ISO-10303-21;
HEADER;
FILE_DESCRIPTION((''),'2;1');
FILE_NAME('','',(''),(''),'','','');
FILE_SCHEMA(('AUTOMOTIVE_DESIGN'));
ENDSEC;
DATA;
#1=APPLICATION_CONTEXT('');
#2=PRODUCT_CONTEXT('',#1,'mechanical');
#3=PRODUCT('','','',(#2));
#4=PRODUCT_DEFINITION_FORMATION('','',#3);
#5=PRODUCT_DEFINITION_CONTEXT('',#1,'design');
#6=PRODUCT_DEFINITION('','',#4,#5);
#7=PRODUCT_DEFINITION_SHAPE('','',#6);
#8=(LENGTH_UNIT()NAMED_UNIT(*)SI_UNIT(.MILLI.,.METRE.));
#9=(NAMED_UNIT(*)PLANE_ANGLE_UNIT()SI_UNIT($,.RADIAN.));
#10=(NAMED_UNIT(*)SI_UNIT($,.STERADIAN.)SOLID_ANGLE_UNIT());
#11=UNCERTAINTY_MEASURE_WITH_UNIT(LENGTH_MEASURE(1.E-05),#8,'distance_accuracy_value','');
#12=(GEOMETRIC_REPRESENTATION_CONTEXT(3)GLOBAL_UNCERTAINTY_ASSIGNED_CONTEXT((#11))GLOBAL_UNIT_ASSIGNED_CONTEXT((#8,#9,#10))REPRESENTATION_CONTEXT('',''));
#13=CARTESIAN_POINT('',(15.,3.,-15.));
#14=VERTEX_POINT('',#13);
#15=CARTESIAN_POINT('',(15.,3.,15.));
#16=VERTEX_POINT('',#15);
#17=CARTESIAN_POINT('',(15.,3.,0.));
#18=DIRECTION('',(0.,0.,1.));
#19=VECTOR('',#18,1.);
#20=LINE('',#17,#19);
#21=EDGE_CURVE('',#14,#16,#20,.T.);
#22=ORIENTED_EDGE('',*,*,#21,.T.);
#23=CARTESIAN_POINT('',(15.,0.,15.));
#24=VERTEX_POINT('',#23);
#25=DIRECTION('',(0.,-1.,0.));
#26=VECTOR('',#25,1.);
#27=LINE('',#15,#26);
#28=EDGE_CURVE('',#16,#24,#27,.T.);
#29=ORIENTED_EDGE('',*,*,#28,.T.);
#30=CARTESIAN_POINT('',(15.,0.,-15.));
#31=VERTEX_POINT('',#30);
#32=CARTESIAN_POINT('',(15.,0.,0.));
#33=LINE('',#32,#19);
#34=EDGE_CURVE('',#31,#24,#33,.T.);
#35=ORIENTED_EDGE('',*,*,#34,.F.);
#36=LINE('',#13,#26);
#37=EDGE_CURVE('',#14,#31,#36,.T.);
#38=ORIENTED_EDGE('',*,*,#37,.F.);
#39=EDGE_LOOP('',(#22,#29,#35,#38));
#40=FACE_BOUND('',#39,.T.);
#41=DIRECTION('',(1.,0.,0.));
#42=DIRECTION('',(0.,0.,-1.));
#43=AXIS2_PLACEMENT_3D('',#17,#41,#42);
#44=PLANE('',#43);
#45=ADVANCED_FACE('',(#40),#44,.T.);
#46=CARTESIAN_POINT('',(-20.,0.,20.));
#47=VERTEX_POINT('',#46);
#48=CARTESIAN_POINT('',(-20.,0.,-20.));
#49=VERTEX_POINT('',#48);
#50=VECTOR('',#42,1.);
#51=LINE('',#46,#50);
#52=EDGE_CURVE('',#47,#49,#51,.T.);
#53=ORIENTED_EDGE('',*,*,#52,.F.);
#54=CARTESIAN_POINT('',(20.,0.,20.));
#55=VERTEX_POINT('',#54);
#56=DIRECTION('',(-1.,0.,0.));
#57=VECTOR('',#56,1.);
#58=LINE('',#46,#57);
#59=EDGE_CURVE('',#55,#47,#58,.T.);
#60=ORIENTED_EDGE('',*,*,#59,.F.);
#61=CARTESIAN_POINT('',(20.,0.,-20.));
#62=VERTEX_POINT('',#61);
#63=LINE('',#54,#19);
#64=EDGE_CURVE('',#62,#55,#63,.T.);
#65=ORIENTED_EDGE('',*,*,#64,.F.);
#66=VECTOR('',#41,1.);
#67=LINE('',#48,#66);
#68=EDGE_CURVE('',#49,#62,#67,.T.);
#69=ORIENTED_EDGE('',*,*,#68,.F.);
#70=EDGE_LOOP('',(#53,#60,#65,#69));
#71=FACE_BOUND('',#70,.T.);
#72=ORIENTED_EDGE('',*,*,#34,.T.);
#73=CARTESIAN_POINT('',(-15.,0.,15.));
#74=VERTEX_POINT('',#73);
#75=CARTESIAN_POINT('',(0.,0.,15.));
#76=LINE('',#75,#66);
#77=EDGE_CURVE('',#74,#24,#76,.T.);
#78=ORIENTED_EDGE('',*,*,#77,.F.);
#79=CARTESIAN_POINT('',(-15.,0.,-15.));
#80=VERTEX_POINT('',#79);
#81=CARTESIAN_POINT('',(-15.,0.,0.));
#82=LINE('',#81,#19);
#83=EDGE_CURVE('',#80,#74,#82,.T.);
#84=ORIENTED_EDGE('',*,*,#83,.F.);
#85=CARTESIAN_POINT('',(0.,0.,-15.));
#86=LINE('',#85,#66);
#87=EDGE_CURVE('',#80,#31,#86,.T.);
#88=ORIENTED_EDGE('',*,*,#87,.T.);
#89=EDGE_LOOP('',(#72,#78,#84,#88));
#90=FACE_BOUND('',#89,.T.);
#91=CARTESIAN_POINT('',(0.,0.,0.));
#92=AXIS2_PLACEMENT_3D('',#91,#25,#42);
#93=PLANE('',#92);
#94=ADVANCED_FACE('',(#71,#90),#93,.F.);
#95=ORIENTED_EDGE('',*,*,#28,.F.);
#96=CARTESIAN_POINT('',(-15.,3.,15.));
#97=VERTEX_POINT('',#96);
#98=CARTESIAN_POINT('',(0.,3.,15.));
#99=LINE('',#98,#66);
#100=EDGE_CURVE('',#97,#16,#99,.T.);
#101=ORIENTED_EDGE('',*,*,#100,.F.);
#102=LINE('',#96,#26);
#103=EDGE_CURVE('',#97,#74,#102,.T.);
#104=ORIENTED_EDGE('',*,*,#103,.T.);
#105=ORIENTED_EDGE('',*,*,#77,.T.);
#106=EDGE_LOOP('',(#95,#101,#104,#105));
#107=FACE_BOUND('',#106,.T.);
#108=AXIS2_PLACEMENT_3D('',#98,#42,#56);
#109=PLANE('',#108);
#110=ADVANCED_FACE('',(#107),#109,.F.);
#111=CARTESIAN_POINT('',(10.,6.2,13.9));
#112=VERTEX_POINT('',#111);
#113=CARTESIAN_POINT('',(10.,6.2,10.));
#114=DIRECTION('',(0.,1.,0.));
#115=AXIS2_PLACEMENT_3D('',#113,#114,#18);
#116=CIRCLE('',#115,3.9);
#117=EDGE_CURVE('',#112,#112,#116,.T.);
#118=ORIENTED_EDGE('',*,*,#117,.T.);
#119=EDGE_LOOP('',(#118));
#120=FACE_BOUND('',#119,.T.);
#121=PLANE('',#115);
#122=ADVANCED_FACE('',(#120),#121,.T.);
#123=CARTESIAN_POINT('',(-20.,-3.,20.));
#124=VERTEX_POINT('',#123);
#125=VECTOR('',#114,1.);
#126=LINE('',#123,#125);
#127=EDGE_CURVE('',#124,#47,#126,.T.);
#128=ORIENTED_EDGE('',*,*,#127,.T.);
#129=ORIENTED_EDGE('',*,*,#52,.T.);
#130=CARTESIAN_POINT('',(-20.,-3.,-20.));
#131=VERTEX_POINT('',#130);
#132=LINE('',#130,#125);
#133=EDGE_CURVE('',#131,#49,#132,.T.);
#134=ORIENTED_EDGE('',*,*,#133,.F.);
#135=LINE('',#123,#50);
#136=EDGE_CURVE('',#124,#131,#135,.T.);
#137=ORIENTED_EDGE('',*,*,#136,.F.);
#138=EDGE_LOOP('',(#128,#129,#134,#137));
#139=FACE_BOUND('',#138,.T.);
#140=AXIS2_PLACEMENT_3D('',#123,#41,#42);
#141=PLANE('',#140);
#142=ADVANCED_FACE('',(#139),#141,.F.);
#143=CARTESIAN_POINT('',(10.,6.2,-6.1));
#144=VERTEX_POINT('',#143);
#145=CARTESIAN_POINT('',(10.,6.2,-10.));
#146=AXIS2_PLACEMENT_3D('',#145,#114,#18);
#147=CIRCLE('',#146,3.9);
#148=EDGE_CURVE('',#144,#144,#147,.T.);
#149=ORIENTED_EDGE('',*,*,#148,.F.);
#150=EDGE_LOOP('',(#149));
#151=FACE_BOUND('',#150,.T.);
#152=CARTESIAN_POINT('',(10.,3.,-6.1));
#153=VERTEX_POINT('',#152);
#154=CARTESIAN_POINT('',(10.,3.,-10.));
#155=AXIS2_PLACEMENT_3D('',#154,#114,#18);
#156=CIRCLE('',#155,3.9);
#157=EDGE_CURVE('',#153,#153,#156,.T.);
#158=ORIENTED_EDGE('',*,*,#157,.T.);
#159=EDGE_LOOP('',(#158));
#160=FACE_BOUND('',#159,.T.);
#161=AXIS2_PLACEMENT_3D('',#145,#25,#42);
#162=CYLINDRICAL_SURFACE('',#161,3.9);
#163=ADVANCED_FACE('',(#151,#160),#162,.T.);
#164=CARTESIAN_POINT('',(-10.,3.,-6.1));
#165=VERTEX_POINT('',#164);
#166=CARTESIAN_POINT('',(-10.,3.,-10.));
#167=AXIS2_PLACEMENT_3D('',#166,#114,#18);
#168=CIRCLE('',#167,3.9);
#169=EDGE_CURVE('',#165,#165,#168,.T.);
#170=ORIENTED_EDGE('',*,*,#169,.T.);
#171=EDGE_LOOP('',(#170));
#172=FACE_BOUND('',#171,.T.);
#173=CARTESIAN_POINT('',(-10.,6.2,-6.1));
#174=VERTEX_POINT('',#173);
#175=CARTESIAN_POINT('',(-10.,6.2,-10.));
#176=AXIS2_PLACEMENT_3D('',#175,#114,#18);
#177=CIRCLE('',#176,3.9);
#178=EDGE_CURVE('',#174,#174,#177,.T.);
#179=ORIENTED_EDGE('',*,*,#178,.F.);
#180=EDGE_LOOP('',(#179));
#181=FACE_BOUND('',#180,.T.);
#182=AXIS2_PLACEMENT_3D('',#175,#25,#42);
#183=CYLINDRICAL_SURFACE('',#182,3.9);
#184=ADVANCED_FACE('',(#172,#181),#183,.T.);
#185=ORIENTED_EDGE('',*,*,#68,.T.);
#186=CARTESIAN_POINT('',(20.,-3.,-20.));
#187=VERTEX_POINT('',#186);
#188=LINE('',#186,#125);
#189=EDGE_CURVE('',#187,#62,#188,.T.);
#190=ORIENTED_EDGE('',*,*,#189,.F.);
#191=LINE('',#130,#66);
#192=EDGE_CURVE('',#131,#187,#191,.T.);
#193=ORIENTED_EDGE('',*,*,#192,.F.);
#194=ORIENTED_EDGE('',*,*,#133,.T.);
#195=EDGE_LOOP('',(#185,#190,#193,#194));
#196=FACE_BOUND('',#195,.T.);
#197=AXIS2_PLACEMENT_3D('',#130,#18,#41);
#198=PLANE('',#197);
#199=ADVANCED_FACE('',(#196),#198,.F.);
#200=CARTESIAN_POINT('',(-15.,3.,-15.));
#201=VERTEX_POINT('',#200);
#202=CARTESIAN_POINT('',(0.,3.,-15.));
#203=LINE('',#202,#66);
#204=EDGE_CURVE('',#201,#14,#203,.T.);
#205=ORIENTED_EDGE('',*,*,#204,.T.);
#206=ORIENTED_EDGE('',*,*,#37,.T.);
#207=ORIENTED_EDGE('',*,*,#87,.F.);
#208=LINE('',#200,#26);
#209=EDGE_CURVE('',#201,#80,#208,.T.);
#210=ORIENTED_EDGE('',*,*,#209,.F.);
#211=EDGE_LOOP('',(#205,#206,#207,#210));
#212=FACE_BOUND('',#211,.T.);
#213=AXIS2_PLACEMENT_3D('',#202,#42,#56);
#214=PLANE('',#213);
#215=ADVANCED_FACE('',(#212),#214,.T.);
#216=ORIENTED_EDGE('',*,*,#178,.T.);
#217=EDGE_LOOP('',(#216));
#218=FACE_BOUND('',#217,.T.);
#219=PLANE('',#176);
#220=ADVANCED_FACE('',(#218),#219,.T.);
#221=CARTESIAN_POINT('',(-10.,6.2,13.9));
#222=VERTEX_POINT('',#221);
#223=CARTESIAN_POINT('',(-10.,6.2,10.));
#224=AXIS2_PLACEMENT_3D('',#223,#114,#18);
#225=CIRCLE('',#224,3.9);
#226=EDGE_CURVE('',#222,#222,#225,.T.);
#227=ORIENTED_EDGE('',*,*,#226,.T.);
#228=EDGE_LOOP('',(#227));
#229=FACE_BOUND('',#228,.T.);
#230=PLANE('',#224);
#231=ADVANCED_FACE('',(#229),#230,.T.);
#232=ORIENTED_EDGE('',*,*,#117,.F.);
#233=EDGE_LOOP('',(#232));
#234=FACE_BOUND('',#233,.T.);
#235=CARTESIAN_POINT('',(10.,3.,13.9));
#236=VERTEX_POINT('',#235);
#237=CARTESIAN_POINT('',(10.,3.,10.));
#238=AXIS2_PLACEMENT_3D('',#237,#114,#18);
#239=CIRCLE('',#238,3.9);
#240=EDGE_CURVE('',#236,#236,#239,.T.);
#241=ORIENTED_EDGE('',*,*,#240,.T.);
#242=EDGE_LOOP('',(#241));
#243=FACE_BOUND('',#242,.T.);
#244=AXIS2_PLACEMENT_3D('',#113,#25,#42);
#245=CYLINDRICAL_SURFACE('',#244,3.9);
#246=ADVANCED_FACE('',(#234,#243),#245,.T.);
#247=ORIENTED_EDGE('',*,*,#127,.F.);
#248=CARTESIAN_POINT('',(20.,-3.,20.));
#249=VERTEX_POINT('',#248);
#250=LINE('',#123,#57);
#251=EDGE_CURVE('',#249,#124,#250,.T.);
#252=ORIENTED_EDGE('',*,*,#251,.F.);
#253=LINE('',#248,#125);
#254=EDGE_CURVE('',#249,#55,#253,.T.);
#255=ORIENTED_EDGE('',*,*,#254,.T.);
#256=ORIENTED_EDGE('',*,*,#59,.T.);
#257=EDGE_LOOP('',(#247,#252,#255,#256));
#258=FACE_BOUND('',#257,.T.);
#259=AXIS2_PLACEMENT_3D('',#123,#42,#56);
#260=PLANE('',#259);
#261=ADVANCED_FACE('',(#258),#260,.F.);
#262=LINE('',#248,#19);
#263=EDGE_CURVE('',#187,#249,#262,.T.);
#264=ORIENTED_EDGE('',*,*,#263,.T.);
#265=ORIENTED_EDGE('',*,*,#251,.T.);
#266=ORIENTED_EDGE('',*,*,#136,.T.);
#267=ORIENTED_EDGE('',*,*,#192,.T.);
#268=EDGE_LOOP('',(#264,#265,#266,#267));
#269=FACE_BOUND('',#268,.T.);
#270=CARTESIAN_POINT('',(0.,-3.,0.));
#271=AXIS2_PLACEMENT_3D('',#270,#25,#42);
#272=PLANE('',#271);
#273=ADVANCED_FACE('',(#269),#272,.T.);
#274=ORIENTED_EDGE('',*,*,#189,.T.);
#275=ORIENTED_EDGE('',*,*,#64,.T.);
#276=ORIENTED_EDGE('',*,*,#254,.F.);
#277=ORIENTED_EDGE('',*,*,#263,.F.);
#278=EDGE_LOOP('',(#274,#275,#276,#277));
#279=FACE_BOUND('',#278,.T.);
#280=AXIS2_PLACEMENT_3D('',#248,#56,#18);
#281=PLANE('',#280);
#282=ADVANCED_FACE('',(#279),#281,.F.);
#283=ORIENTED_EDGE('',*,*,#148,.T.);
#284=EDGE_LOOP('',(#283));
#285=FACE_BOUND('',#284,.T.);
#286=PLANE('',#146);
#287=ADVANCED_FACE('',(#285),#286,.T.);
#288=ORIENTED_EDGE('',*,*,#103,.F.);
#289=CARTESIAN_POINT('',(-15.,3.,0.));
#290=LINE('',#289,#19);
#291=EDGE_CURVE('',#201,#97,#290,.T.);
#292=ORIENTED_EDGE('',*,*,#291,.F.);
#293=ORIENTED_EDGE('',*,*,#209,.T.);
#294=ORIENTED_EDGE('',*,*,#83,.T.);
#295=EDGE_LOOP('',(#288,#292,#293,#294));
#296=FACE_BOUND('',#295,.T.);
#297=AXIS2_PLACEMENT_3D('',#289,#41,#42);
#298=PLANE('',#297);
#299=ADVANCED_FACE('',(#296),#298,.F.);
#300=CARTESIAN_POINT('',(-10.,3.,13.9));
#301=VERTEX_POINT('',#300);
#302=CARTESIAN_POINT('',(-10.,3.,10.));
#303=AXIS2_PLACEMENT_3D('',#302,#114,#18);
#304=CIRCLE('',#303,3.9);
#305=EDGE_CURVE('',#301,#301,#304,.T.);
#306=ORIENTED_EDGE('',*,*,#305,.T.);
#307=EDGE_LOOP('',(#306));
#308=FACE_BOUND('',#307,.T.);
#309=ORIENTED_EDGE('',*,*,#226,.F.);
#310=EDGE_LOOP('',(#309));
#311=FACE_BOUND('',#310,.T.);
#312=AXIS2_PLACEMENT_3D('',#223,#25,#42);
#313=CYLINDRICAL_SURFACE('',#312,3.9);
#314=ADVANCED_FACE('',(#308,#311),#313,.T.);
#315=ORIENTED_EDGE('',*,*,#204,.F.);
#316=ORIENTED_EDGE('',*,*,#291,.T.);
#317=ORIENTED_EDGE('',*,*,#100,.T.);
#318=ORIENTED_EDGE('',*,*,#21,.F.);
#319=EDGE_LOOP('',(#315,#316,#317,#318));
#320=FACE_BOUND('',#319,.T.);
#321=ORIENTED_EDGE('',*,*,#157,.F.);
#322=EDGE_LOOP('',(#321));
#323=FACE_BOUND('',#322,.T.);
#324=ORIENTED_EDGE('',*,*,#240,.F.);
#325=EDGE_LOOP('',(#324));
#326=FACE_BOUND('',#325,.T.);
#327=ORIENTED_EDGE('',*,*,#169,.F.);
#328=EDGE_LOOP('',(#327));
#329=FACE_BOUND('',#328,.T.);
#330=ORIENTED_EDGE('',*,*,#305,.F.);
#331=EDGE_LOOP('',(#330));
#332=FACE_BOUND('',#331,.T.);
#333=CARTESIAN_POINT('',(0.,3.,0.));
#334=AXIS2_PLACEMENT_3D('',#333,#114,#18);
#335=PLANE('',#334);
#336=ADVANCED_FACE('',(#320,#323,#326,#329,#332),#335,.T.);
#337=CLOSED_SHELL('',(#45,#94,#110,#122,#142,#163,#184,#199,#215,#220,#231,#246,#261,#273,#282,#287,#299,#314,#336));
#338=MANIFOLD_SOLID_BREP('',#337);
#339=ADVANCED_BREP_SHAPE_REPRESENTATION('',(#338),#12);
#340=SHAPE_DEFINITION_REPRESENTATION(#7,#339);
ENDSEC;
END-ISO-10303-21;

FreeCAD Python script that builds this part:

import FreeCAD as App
import Part
import Sketcher
from FreeCAD import Vector


def add_polygon(sketch, points):
    """Adds a closed chain of lines whose ends are joined by coincident constraints."""
    first, n = sketch.GeometryCount, len(points)
    for a, b in zip(points, points[1:] + points[:1]):
        sketch.addGeometry(Part.LineSegment(App.Vector(*a, 0), App.Vector(*b, 0)), False)
    for i in range(n):
        sketch.addConstraint(Sketcher.Constraint("Coincident", first + i, 2, first + (i + 1) % n, 1))

doc = App.newDocument("Part")
body = doc.addObject("PartDesign::Body", "Body")

# Sketch on XZ plane
sketch1 = body.newObject("Sketcher::SketchObject", "Sketch")
sketch1.AttachmentSupport = (doc.getObject("XZ_Plane"), [""])
sketch1.MapMode = "FlatFace"
add_polygon(sketch1, [(-15, -15), (-15, 15), (15, 15), (15, -15)])  # lines 0-3
sketch1.addConstraint([
    Sketcher.Constraint("Vertical", 0),
    Sketcher.Constraint("Horizontal", 1),
    Sketcher.Constraint("Vertical", 2),
    Sketcher.Constraint("Horizontal", 3),
    Sketcher.Constraint("Symmetric", 0, 2, 2, 2, -1, 1),
    Sketcher.Constraint("Equal", 3, 0),
    Sketcher.Constraint("DistanceX", 1, 1, 1, 2, 30.0),
])
pad1 = body.newObject("PartDesign::Pad", "Pad")
pad1.Profile = sketch1
pad1.Length = 3
pad1.Reversed = True

# Sketch on XZ plane
sketch2 = body.newObject("Sketcher::SketchObject", "Sketch001")
sketch2.AttachmentSupport = (doc.getObject("XZ_Plane"), [""])
sketch2.MapMode = "FlatFace"
sketch2.AttachmentOffset = App.Placement(Vector(0, 0, -3), App.Rotation())
sketch2.addGeometry([
    Part.Circle(Vector(-10, 10, 0), Vector(0, 0, 1), 3.9),
    Part.Circle(Vector(10, 10, 0), Vector(0, 0, 1), 3.9),
    Part.Circle(Vector(10, -10, 0), Vector(0, 0, 1), 3.9),
    Part.Circle(Vector(-10, -10, 0), Vector(0, 0, 1), 3.9),
], False)
sketch2.addConstraint([
    Sketcher.Constraint("Equal", 0, 1),
    Sketcher.Constraint("Equal", 1, 2),
    Sketcher.Constraint("Equal", 2, 3),
    Sketcher.Constraint("Symmetric", 0, 3, 2, 3, -1, 1),
    Sketcher.Constraint("Symmetric", 1, 3, 3, 3, -1, 1),
    Sketcher.Constraint("Symmetric", 0, 3, 1, 3, -2),
    Sketcher.Constraint("Diameter", 0, 7.8),
    Sketcher.Constraint("DistanceX", 0, 3, -1, 1, 10.0),
    Sketcher.Constraint("DistanceY", -1, 1, 0, 3, 10.0),
])
pad2 = body.newObject("PartDesign::Pad", "Pad001")
pad2.Profile = sketch2
pad2.Length = 3.2
pad2.Reversed = True

# Sketch on XZ plane
sketch3 = body.newObject("Sketcher::SketchObject", "Sketch002")
sketch3.AttachmentSupport = (doc.getObject("XZ_Plane"), [""])
sketch3.MapMode = "FlatFace"
add_polygon(sketch3, [(-20, 20), (-20, -20), (20, -20), (20, 20)])  # lines 0-3
sketch3.addConstraint([
    Sketcher.Constraint("Vertical", 0),
    Sketcher.Constraint("Horizontal", 1),
    Sketcher.Constraint("Vertical", 2),
    Sketcher.Constraint("Horizontal", 3),
    Sketcher.Constraint("Symmetric", 0, 2, 2, 2, -1, 1),
    Sketcher.Constraint("Equal", 3, 0),
    Sketcher.Constraint("DistanceX", 1, 1, 1, 2, 40.0),
])
pad3 = body.newObject("PartDesign::Pad", "Pad002")
pad3.Profile = sketch3
pad3.Length = 3

doc.recompute()
